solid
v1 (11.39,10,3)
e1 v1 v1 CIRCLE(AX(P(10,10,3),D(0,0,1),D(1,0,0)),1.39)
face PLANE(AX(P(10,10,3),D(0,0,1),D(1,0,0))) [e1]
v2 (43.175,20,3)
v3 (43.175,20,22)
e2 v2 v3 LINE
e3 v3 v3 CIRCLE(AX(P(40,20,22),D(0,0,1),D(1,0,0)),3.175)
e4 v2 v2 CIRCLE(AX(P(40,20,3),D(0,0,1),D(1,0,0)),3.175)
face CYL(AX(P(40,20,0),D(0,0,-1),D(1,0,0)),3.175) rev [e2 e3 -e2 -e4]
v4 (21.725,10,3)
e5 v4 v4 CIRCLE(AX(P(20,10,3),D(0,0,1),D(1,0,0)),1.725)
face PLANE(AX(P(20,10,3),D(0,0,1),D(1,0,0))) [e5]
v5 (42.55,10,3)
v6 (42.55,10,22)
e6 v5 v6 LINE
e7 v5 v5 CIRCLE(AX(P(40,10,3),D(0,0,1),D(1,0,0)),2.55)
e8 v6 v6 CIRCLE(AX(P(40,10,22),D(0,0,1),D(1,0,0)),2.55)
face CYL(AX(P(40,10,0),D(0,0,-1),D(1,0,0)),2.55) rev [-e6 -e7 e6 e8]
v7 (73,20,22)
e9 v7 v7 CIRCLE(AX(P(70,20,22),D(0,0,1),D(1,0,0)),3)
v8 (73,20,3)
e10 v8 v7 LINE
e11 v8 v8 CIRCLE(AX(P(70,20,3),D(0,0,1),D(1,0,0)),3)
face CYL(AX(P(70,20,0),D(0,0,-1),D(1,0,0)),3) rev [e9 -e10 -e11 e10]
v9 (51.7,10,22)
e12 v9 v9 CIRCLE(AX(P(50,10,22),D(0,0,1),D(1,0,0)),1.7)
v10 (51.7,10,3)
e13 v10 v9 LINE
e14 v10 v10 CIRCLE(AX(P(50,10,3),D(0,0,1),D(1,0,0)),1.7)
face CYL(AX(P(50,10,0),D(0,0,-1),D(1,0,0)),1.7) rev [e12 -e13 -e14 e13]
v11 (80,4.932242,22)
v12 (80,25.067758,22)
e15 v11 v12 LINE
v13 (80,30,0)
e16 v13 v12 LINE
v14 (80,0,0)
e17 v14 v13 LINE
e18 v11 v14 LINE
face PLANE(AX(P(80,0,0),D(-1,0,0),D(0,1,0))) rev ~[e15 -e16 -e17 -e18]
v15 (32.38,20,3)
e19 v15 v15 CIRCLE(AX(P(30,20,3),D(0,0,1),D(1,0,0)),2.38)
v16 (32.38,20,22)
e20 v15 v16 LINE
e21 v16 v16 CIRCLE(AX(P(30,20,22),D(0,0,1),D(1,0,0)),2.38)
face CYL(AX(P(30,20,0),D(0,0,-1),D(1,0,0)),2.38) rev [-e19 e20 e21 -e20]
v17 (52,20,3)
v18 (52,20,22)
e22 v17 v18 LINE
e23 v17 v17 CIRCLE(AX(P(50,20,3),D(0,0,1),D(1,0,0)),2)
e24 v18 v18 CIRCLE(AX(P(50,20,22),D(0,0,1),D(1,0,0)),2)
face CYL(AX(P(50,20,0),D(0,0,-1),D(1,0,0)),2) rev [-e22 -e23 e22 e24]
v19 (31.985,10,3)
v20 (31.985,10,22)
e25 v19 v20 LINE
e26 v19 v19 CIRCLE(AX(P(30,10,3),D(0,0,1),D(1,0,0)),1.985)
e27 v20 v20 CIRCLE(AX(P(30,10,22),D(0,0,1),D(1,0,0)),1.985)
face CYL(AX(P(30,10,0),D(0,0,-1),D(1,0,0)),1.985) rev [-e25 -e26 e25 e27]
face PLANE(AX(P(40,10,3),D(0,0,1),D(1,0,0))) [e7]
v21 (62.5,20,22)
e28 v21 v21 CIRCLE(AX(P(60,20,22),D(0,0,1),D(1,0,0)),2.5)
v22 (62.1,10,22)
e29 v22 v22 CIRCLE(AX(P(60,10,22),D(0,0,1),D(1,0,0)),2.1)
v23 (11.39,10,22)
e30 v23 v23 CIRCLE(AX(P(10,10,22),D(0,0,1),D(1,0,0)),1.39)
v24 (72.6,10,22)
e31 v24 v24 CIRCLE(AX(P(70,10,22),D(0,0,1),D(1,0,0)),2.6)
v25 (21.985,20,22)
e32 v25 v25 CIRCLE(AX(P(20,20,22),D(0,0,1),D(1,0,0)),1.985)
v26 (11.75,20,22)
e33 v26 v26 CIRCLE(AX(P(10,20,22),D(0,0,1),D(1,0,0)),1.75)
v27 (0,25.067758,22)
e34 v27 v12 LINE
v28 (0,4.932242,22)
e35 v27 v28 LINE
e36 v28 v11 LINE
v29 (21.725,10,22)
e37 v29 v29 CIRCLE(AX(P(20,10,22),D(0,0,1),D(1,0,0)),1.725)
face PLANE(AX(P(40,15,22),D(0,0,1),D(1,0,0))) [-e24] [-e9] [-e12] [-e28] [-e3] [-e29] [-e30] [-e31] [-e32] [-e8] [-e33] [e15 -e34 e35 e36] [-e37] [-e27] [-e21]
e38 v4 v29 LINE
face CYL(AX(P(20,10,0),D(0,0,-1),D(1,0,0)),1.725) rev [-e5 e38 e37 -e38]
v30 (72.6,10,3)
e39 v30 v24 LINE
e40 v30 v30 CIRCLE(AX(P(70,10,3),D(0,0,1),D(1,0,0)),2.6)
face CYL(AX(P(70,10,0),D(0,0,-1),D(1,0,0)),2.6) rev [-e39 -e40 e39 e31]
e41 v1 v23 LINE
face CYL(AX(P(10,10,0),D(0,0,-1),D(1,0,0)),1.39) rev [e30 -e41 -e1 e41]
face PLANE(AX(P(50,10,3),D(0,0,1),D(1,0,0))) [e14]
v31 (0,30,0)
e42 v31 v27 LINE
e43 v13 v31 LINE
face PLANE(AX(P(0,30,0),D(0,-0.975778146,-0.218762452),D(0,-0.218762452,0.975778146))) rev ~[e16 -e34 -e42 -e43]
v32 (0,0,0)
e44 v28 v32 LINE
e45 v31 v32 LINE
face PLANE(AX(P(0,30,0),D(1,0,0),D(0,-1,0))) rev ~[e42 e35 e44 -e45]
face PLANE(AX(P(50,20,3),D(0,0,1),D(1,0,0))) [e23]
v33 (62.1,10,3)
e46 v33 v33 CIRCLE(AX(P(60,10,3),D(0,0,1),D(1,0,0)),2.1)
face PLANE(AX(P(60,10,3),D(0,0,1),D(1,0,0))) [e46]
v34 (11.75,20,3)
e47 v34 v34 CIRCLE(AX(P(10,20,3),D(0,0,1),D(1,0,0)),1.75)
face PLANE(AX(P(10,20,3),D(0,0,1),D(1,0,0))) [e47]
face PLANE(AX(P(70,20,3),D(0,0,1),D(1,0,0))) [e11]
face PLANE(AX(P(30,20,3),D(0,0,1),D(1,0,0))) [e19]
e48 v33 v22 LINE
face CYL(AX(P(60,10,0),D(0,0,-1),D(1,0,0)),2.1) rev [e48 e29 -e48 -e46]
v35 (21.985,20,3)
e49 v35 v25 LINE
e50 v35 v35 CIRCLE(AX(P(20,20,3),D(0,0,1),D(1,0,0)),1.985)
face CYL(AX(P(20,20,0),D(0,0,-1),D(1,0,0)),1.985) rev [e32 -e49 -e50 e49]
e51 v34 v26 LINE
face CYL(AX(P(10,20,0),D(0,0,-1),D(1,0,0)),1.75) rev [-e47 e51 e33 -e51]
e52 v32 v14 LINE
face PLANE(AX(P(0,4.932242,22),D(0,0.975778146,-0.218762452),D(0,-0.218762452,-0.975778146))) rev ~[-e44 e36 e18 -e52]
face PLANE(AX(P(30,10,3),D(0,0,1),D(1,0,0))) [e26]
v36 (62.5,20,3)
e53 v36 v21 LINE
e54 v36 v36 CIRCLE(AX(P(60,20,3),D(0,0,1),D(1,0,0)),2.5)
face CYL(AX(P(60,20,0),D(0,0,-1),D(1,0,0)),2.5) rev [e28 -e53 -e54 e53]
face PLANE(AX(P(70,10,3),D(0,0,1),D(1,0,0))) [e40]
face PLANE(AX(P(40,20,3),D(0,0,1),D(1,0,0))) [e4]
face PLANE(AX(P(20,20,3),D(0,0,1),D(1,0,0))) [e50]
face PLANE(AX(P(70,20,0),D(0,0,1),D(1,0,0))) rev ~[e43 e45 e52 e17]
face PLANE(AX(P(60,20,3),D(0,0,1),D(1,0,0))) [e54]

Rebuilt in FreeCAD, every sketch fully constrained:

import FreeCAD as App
import Part
import Sketcher

V = App.Vector

doc = App.newDocument("Part")
body = doc.addObject("PartDesign::Body", "Body")

# Sketch on XY plane
sketch1 = body.newObject("Sketcher::SketchObject", "Sketch")
sketch1.AttachmentSupport = (doc.getObject("XY_Plane"), [""])
sketch1.MapMode = "FlatFace"
sketch1.addGeometry([
    Part.LineSegment(V(0, 30, 0), V(0, 0, 0)),  # 0
    Part.LineSegment(V(0, 0, 0), V(80, 0, 0)),  # 1
    Part.LineSegment(V(80, 0, 0), V(80, 30, 0)),  # 2
    Part.LineSegment(V(80, 30, 0), V(0, 30, 0)),  # 3
    Part.Circle(V(10, 10, 0), V(0, 0, 1), 1.4),  # 4
    Part.Circle(V(20, 10, 0), V(0, 0, 1), 1.7),  # 5
    Part.Circle(V(30, 10, 0), V(0, 0, 1), 2),  # 6
    Part.Circle(V(40, 10, 0), V(0, 0, 1), 2.5),  # 7
    Part.Circle(V(50, 10, 0), V(0, 0, 1), 1.7),  # 8
    Part.Circle(V(60, 10, 0), V(0, 0, 1), 2.1),  # 9
    Part.Circle(V(70, 10, 0), V(0, 0, 1), 2.6),  # 10
    Part.Circle(V(10, 20, 0), V(0, 0, 1), 1.8),  # 11
    Part.Circle(V(20, 20, 0), V(0, 0, 1), 2),  # 12
    Part.Circle(V(30, 20, 0), V(0, 0, 1), 2.4),  # 13
    Part.Circle(V(40, 20, 0), V(0, 0, 1), 3.2),  # 14
    Part.Circle(V(50, 20, 0), V(0, 0, 1), 2),  # 15
    Part.Circle(V(60, 20, 0), V(0, 0, 1), 2.5),  # 16
    Part.Circle(V(70, 20, 0), V(0, 0, 1), 3),  # 17
], False)
sketch1.addConstraint([
    Sketcher.Constraint("Coincident", 0, 2, 1, 1),
    Sketcher.Constraint("Coincident", 1, 2, 2, 1),
    Sketcher.Constraint("Coincident", 2, 2, 3, 1),
    Sketcher.Constraint("Coincident", 3, 2, 0, 1),
    Sketcher.Constraint("Vertical", 0),
    Sketcher.Constraint("Horizontal", 1),
    Sketcher.Constraint("Vertical", 2),
    Sketcher.Constraint("Horizontal", 3),
    Sketcher.Constraint("Coincident", 0, 2, -1, 1),
    Sketcher.Constraint("Equal", 6, 12),
    Sketcher.Constraint("Horizontal", 4, 3, 5, 3),
    Sketcher.Constraint("Horizontal", 5, 3, 6, 3),
    Sketcher.Constraint("Horizontal", 6, 3, 7, 3),
    Sketcher.Constraint("Horizontal", 7, 3, 8, 3),
    Sketcher.Constraint("Horizontal", 8, 3, 9, 3),
    Sketcher.Constraint("Horizontal", 9, 3, 10, 3),
    Sketcher.Constraint("Horizontal", 11, 3, 12, 3),
    Sketcher.Constraint("Horizontal", 12, 3, 13, 3),
    Sketcher.Constraint("Horizontal", 13, 3, 14, 3),
    Sketcher.Constraint("Horizontal", 14, 3, 15, 3),
    Sketcher.Constraint("Horizontal", 15, 3, 16, 3),
    Sketcher.Constraint("Horizontal", 16, 3, 17, 3),
    Sketcher.Constraint("Vertical", 4, 3, 11, 3),
    Sketcher.Constraint("Vertical", 5, 3, 12, 3),
    Sketcher.Constraint("Vertical", 6, 3, 13, 3),
    Sketcher.Constraint("Vertical", 7, 3, 14, 3),
    Sketcher.Constraint("Vertical", 8, 3, 15, 3),
    Sketcher.Constraint("Vertical", 9, 3, 16, 3),
    Sketcher.Constraint("Vertical", 10, 3, 17, 3),
    Sketcher.Constraint("Diameter", 15, 4.0),
    Sketcher.Constraint("Diameter", 16, 5.0),
    Sketcher.Constraint("Diameter", 17, 6.0),
    Sketcher.Constraint("Diameter", 7, 5.1),
    Sketcher.Constraint("Diameter", 8, 3.4),
    Sketcher.Constraint("Diameter", 9, 4.2),
    Sketcher.Constraint("Diameter", 10, 5.2),
    Sketcher.Constraint("Diameter", 11, 3.5),
    Sketcher.Constraint("Diameter", 4, 2.78),
    Sketcher.Constraint("Diameter", 5, 3.45),
    Sketcher.Constraint("Diameter", 6, 3.97),
    Sketcher.Constraint("Diameter", 13, 4.76),
    Sketcher.Constraint("Diameter", 14, 6.35),
    Sketcher.Constraint("DistanceX", 1, 1, 1, 2, 80.0),
    Sketcher.Constraint("DistanceY", 0, 2, 0, 1, 30.0),
    Sketcher.Constraint("DistanceX", -1, 1, 4, 3, 10.0),
    Sketcher.Constraint("DistanceY", -1, 1, 4, 3, 10.0),
    Sketcher.Constraint("DistanceX", -1, 1, 5, 3, 20.0),
    Sketcher.Constraint("DistanceX", -1, 1, 6, 3, 30.0),
    Sketcher.Constraint("DistanceX", -1, 1, 7, 3, 40.0),
    Sketcher.Constraint("DistanceX", -1, 1, 8, 3, 50.0),
    Sketcher.Constraint("DistanceX", -1, 1, 9, 3, 60.0),
    Sketcher.Constraint("DistanceX", -1, 1, 10, 3, 70.0),
    Sketcher.Constraint("DistanceY", -1, 1, 11, 3, 20.0),
])
pad1 = body.newObject("PartDesign::Pad", "Pad")
pad1.Profile = sketch1
pad1.Length = 22

# Sketch on XY plane
sketch2 = body.newObject("Sketcher::SketchObject", "Sketch001")
sketch2.AttachmentSupport = (doc.getObject("XY_Plane"), [""])
sketch2.MapMode = "FlatFace"
sketch2.addGeometry([
    Part.Circle(V(70, 20, 0), V(0, 0, 1), 3),  # 0
    Part.Circle(V(70, 10, 0), V(0, 0, 1), 2.6),  # 1
    Part.Circle(V(60, 10, 0), V(0, 0, 1), 2.1),  # 2
    Part.Circle(V(60, 20, 0), V(0, 0, 1), 2.5),  # 3
    Part.Circle(V(50, 20, 0), V(0, 0, 1), 2),  # 4
    Part.Circle(V(50, 10, 0), V(0, 0, 1), 1.7),  # 5
    Part.Circle(V(40, 20, 0), V(0, 0, 1), 3.2),  # 6
    Part.Circle(V(40, 10, 0), V(0, 0, 1), 2.5),  # 7
    Part.Circle(V(30, 10, 0), V(0, 0, 1), 2),  # 8
    Part.Circle(V(30, 20, 0), V(0, 0, 1), 2.4),  # 9
    Part.Circle(V(20, 20, 0), V(0, 0, 1), 2),  # 10
    Part.Circle(V(20, 10, 0), V(0, 0, 1), 1.7),  # 11
    Part.Circle(V(10, 20, 0), V(0, 0, 1), 1.8),  # 12
    Part.Circle(V(10, 10, 0), V(0, 0, 1), 1.4),  # 13
], False)
sketch2.addConstraint([
    Sketcher.Constraint("Equal", 8, 10),
    Sketcher.Constraint("Horizontal", 1, 3, 2, 3),
    Sketcher.Constraint("Horizontal", 0, 3, 3, 3),
    Sketcher.Constraint("Horizontal", 3, 3, 4, 3),
    Sketcher.Constraint("Horizontal", 2, 3, 5, 3),
    Sketcher.Constraint("Horizontal", 4, 3, 6, 3),
    Sketcher.Constraint("Horizontal", 5, 3, 7, 3),
    Sketcher.Constraint("Horizontal", 7, 3, 8, 3),
    Sketcher.Constraint("Horizontal", 6, 3, 9, 3),
    Sketcher.Constraint("Horizontal", 9, 3, 10, 3),
    Sketcher.Constraint("Horizontal", 8, 3, 11, 3),
    Sketcher.Constraint("Horizontal", 10, 3, 12, 3),
    Sketcher.Constraint("Horizontal", 11, 3, 13, 3),
    Sketcher.Constraint("Vertical", 0, 3, 1, 3),
    Sketcher.Constraint("Vertical", 2, 3, 3, 3),
    Sketcher.Constraint("Vertical", 4, 3, 5, 3),
    Sketcher.Constraint("Vertical", 6, 3, 7, 3),
    Sketcher.Constraint("Vertical", 8, 3, 9, 3),
    Sketcher.Constraint("Vertical", 10, 3, 11, 3),
    Sketcher.Constraint("Vertical", 12, 3, 13, 3),
    Sketcher.Constraint("Diameter", 0, 6.0),
    Sketcher.Constraint("Diameter", 3, 5.0),
    Sketcher.Constraint("Diameter", 4, 4.0),
    Sketcher.Constraint("Diameter", 1, 5.2),
    Sketcher.Constraint("Diameter", 2, 4.2),
    Sketcher.Constraint("Diameter", 5, 3.4),
    Sketcher.Constraint("Diameter", 7, 5.1),
    Sketcher.Constraint("Diameter", 12, 3.5),
    Sketcher.Constraint("Diameter", 6, 6.35),
    Sketcher.Constraint("Diameter", 8, 3.97),
    Sketcher.Constraint("Diameter", 9, 4.76),
    Sketcher.Constraint("Diameter", 11, 3.45),
    Sketcher.Constraint("Diameter", 13, 2.78),
    Sketcher.Constraint("DistanceX", -1, 1, 0, 3, 70.0),
    Sketcher.Constraint("DistanceY", -1, 1, 0, 3, 20.0),
    Sketcher.Constraint("DistanceY", -1, 1, 1, 3, 10.0),
    Sketcher.Constraint("DistanceX", -1, 1, 2, 3, 60.0),
    Sketcher.Constraint("DistanceX", -1, 1, 4, 3, 50.0),
    Sketcher.Constraint("DistanceX", -1, 1, 6, 3, 40.0),
    Sketcher.Constraint("DistanceX", -1, 1, 8, 3, 30.0),
    Sketcher.Constraint("DistanceX", -1, 1, 10, 3, 20.0),
    Sketcher.Constraint("DistanceX", -1, 1, 12, 3, 10.0),
])
pad2 = body.newObject("PartDesign::Pad", "Pad001")
pad2.Profile = sketch2
pad2.Length = 3

# Sketch on YZ plane
sketch3 = body.newObject("Sketcher::SketchObject", "Sketch002")
sketch3.AttachmentSupport = (doc.getObject("YZ_Plane"), [""])
sketch3.MapMode = "FlatFace"
sketch3.addGeometry([
    Part.LineSegment(V(30, 22, 0), V(30, 0, 0)),  # 0
    Part.LineSegment(V(30, 0, 0), V(25.1, 22, 0)),  # 1
    Part.LineSegment(V(25.1, 22, 0), V(30, 22, 0)),  # 2
    Part.LineSegment(V(4.9, 22, 0), V(0, 0, 0)),  # 3
    Part.LineSegment(V(0, 0, 0), V(0, 22, 0)),  # 4
    Part.LineSegment(V(0, 22, 0), V(4.9, 22, 0)),  # 5
], False)
sketch3.addConstraint([
    Sketcher.Constraint("Coincident", 0, 2, 1, 1),
    Sketcher.Constraint("Coincident", 1, 2, 2, 1),
    Sketcher.Constraint("Coincident", 2, 2, 0, 1),
    Sketcher.Constraint("Coincident", 3, 2, 4, 1),
    Sketcher.Constraint("Coincident", 4, 2, 5, 1),
    Sketcher.Constraint("Coincident", 5, 2, 3, 1),
    Sketcher.Constraint("Vertical", 0),
    Sketcher.Constraint("Horizontal", 2),
    Sketcher.Constraint("Vertical", 4),
    Sketcher.Constraint("Horizontal", 5),
    Sketcher.Constraint("Coincident", 3, 2, -1, 1),
    Sketcher.Constraint("PointOnObject", 0, 2, -1),
    Sketcher.Constraint("Horizontal", 2, 2, 4, 2),
    Sketcher.Constraint("Equal", 2, 5),
    Sketcher.Constraint("DistanceY", 0, 2, 0, 1, 22.0),
    Sketcher.Constraint("DistanceX", -1, 1, 0, 2, 30.0),
    Sketcher.Constraint("DistanceX", 2, 1, 2, 2, 4.932242),
])
pocket1 = body.newObject("PartDesign::Pocket", "Pocket")
pocket1.Profile = sketch3
pocket1.Length = 300
pocket1.Reversed = True

doc.recompute()
